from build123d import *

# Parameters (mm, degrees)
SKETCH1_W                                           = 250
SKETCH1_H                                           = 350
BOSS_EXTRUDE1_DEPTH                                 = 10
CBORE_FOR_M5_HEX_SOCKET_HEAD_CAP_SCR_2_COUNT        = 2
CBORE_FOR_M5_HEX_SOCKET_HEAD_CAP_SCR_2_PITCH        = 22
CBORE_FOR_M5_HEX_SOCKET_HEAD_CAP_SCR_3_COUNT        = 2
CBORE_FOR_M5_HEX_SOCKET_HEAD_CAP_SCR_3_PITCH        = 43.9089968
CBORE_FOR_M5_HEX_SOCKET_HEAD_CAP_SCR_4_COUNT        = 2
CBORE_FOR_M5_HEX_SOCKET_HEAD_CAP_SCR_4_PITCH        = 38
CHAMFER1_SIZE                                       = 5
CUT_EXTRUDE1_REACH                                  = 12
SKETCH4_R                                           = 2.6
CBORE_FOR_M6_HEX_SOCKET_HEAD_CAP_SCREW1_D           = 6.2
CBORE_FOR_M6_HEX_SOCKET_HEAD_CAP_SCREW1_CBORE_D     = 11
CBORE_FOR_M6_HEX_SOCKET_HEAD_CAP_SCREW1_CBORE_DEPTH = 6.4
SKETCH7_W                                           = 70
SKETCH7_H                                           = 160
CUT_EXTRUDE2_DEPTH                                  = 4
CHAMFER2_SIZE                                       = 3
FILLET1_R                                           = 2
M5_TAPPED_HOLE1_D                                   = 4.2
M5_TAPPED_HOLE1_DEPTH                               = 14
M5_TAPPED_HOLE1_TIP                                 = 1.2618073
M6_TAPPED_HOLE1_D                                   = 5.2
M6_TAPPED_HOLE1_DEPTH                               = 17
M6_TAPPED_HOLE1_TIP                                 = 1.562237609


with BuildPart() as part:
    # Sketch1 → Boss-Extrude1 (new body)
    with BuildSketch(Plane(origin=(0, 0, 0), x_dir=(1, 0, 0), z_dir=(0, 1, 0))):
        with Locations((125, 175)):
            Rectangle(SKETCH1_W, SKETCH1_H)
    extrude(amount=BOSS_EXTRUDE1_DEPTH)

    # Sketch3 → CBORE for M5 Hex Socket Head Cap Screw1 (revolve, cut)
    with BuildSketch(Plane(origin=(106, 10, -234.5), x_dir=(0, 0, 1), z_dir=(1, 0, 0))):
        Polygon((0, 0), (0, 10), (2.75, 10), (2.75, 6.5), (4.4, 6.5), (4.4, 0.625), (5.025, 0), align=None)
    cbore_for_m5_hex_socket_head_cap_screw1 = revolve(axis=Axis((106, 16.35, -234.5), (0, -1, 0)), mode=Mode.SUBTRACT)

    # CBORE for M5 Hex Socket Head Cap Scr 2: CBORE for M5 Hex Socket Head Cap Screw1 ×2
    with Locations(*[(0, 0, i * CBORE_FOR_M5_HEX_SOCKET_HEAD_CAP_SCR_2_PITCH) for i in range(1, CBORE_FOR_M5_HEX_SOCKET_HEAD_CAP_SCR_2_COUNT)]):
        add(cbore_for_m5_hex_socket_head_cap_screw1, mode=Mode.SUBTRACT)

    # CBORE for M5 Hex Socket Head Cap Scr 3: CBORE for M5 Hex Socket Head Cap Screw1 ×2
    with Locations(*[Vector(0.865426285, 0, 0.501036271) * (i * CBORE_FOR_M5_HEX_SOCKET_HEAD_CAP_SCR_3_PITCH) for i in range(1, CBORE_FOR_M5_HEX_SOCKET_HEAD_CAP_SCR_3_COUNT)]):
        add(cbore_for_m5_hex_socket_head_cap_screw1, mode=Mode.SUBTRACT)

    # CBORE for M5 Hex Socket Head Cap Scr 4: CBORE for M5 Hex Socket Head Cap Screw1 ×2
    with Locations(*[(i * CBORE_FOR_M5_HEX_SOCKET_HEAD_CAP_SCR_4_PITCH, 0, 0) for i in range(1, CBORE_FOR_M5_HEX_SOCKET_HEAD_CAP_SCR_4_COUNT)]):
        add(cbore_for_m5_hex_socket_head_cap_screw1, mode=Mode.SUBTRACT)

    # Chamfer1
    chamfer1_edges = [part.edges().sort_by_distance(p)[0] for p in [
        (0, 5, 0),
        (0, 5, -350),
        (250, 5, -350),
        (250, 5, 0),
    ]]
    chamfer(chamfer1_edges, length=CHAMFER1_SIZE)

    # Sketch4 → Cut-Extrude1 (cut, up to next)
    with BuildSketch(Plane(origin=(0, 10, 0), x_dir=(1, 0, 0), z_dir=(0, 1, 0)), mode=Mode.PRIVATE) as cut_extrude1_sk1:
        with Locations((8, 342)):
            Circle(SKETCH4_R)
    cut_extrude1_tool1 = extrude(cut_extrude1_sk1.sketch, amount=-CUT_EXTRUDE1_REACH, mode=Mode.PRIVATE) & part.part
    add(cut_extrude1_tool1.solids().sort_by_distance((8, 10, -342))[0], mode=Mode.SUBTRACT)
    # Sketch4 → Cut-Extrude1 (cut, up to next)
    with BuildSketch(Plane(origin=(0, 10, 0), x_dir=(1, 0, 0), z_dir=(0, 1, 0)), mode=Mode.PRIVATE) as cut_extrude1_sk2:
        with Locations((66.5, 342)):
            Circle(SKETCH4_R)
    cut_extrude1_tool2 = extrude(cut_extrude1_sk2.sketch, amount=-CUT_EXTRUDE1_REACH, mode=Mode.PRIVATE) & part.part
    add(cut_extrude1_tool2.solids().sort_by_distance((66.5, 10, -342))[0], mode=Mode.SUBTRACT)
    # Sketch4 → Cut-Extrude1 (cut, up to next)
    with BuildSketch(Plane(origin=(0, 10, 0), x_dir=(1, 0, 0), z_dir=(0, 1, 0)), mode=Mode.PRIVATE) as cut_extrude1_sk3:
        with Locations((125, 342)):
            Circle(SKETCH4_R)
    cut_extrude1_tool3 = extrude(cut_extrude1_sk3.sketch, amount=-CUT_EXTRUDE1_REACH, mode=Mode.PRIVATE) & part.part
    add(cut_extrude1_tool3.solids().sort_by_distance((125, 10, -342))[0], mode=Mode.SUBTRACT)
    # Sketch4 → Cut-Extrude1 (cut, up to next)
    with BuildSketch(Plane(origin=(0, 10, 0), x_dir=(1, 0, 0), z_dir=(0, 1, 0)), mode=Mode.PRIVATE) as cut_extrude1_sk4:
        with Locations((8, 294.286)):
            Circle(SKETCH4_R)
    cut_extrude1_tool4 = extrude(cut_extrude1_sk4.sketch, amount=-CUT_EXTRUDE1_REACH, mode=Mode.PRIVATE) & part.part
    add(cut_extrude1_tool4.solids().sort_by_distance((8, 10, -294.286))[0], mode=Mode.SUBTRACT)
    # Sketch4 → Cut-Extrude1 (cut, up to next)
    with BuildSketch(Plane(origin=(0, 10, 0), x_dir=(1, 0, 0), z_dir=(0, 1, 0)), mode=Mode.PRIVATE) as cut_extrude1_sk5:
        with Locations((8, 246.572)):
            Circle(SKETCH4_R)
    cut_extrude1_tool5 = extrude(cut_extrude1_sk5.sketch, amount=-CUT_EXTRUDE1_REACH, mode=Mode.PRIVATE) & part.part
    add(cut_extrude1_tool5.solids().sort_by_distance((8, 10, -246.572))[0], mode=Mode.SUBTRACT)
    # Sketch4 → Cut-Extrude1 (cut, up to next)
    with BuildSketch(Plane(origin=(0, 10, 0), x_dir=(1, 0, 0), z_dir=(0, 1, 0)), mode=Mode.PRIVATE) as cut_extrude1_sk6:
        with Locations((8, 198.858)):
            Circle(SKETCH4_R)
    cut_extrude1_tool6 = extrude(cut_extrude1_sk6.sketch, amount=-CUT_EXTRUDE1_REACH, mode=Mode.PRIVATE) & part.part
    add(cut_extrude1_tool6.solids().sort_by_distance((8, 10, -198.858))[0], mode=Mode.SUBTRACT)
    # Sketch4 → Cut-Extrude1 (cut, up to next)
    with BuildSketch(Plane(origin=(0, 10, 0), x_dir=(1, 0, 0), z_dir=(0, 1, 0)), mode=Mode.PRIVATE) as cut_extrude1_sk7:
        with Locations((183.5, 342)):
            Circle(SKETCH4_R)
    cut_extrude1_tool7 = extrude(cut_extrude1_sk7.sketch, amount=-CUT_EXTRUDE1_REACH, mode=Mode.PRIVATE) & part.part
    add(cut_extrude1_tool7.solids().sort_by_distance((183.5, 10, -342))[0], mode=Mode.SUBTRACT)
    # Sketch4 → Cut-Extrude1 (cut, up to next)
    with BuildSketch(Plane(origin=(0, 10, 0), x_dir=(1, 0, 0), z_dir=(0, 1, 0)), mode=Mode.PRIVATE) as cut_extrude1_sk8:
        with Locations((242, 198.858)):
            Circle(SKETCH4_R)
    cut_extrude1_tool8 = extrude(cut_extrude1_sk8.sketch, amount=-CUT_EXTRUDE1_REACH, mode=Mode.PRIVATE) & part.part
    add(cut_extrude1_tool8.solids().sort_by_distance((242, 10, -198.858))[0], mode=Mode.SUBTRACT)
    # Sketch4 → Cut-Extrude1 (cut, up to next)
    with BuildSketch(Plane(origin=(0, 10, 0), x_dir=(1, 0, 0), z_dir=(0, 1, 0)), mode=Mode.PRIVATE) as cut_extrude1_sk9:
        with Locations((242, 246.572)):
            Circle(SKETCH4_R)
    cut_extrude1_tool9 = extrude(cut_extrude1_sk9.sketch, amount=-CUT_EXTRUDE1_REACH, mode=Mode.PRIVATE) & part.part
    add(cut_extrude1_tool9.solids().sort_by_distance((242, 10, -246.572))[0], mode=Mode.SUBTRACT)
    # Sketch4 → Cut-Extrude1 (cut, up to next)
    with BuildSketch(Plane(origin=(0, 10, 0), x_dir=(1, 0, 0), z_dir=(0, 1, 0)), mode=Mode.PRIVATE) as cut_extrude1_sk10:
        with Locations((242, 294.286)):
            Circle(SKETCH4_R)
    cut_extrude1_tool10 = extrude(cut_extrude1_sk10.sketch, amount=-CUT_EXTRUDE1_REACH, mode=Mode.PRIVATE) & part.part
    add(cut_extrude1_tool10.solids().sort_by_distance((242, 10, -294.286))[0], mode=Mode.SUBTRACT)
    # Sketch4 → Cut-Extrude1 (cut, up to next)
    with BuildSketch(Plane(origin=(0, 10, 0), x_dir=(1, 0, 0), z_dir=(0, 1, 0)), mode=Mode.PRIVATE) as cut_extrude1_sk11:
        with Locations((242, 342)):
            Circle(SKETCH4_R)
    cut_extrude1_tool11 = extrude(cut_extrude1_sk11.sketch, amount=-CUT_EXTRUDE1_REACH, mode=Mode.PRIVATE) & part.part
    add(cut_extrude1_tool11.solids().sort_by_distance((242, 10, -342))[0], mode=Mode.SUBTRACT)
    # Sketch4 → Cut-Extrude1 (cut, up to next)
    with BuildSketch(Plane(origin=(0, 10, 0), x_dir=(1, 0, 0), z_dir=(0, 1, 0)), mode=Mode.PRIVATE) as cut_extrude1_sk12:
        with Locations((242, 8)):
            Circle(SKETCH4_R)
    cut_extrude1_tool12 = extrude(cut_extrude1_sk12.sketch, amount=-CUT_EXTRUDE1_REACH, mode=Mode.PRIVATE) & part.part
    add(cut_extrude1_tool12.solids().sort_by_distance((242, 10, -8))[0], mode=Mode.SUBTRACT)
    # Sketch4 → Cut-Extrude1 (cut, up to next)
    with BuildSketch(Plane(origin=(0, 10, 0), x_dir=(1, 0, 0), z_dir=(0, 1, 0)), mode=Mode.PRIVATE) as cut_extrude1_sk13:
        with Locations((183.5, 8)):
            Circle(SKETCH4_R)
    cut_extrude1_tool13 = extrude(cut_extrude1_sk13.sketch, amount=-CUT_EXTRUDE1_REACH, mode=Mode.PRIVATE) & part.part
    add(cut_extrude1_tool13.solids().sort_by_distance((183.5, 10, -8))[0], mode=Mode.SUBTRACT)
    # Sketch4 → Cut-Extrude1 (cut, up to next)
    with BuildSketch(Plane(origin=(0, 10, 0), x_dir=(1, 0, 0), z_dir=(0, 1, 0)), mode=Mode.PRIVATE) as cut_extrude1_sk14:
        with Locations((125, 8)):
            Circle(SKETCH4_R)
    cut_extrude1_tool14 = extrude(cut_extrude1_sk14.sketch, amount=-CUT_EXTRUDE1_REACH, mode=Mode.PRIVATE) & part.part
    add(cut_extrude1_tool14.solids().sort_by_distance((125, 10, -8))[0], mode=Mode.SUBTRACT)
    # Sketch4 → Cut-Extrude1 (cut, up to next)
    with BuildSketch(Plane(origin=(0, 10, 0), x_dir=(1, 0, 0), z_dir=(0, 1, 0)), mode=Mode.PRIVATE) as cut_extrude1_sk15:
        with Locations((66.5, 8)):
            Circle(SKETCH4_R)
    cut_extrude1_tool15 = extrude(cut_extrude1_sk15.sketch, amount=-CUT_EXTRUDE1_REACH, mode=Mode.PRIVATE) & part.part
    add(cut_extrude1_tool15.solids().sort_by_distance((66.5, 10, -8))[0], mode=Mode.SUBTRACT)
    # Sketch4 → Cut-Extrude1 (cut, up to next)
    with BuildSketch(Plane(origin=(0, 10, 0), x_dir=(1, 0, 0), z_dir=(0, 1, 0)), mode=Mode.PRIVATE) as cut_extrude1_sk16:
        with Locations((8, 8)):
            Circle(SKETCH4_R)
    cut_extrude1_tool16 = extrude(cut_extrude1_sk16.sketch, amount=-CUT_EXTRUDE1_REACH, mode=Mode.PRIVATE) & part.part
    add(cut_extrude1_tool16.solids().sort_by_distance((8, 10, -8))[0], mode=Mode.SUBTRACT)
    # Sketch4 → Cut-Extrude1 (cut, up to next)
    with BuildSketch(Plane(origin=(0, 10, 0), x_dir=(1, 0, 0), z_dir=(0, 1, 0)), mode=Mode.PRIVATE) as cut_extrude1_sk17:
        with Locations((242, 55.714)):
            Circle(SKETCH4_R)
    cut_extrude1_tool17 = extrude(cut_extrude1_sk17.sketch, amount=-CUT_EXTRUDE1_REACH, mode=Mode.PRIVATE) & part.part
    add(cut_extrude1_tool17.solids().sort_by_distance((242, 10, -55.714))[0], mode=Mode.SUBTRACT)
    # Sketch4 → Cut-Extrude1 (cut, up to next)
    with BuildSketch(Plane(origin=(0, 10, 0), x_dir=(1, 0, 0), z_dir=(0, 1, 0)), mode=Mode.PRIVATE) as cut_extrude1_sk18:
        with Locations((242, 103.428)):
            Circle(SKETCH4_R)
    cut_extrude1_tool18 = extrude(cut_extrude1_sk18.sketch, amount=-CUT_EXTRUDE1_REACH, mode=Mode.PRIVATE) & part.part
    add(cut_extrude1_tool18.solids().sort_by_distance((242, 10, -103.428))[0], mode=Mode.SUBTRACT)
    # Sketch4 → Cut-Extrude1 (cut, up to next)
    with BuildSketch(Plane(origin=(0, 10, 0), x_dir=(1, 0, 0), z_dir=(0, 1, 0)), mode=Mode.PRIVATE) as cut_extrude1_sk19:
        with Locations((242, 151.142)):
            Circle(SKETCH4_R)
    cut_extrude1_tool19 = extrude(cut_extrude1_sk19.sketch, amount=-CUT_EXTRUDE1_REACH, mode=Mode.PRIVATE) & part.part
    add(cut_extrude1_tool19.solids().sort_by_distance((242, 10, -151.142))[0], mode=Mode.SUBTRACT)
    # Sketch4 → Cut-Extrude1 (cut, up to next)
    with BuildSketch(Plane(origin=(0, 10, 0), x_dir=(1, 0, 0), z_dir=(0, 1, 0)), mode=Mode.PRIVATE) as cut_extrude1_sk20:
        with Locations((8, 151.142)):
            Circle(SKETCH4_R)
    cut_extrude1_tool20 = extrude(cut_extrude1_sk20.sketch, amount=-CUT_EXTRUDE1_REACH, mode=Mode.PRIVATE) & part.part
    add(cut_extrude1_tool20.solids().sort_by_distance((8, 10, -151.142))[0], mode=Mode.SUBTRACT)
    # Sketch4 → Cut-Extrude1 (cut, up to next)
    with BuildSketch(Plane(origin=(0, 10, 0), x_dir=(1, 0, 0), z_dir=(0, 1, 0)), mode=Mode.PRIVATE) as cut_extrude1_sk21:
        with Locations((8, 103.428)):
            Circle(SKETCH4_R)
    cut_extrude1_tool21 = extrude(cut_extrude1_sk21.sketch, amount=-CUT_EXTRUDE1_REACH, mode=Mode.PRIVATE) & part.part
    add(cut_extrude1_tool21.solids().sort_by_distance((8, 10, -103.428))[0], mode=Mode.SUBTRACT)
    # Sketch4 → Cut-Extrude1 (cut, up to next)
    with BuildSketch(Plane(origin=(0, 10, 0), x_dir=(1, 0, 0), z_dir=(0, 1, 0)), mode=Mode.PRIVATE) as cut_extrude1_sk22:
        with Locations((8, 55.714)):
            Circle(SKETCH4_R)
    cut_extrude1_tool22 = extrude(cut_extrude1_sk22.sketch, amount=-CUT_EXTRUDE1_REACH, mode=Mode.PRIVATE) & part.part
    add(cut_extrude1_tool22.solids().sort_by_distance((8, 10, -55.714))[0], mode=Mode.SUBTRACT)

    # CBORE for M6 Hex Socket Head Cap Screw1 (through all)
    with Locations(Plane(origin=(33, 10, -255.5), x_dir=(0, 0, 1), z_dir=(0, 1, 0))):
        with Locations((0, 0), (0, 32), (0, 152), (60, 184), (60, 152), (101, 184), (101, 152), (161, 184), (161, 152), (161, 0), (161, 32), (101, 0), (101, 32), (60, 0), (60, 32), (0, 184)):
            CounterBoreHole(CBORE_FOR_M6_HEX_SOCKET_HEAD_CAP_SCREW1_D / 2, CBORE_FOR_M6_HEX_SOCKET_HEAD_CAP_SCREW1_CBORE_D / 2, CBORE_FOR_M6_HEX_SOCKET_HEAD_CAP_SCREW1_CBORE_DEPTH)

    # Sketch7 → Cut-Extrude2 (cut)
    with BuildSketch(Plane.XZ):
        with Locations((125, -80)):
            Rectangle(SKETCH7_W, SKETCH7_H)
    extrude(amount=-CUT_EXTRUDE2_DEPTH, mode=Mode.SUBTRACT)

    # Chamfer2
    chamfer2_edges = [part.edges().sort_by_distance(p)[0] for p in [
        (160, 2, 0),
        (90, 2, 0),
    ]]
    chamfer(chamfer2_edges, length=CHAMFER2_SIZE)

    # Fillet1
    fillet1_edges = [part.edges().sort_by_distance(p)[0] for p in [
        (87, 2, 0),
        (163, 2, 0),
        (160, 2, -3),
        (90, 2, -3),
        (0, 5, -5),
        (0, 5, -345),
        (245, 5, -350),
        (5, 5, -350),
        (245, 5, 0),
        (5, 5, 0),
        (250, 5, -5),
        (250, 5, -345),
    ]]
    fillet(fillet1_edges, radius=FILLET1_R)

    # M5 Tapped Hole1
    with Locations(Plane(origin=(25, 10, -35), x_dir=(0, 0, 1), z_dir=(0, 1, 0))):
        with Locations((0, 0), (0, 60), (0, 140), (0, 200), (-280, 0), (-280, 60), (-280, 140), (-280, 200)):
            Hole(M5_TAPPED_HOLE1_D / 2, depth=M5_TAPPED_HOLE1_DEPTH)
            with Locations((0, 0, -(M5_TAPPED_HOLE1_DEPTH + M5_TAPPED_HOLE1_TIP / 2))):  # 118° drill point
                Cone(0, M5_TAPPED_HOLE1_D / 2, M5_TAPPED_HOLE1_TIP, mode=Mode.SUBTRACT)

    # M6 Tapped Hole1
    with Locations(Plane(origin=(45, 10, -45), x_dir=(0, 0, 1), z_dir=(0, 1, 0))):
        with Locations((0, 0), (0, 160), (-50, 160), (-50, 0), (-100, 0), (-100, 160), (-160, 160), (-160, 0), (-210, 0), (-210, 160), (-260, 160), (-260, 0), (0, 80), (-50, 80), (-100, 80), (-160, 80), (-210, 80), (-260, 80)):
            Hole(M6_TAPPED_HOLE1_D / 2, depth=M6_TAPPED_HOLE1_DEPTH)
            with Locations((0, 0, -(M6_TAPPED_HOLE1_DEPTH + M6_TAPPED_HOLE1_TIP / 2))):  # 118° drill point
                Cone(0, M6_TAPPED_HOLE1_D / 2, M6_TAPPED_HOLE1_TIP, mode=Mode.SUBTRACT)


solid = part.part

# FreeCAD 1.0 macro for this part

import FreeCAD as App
import Part
import Sketcher
from FreeCAD import Vector
Q = App.Units.Quantity


def edges_at(feature, points):
    """Names of the edges that pass closest to the given points."""
    edges = feature.Shape.Edges
    near = lambda p: min(range(len(edges)), key=lambda i: edges[i].distToShape(Part.Vertex(*p))[0])
    return sorted({f"Edge{near(p) + 1}" for p in points})


def add_polygon(sketch, points):
    """Adds a closed chain of lines whose ends are joined by coincident constraints."""
    first, n = sketch.GeometryCount, len(points)
    for a, b in zip(points, points[1:] + points[:1]):
        sketch.addGeometry(Part.LineSegment(App.Vector(*a, 0), App.Vector(*b, 0)), False)
    for i in range(n):
        sketch.addConstraint(Sketcher.Constraint("Coincident", first + i, 2, first + (i + 1) % n, 1))

doc = App.newDocument("Part")
body = doc.addObject("PartDesign::Body", "Body")

# Sketch on XZ plane
sketch1 = body.newObject("Sketcher::SketchObject", "Sketch")
sketch1.AttachmentSupport = (doc.getObject("XZ_Plane"), [""])
sketch1.MapMode = "FlatFace"
add_polygon(sketch1, [(0, -350), (0, 0), (250, 0), (250, -350)])  # lines 0-3
sketch1.addConstraint([
    Sketcher.Constraint("Vertical", 0),
    Sketcher.Constraint("Horizontal", 1),
    Sketcher.Constraint("Vertical", 2),
    Sketcher.Constraint("Horizontal", 3),
    Sketcher.Constraint("Coincident", 0, 2, -1, 1),
    Sketcher.Constraint("DistanceX", 1, 1, 1, 2, Q("250 mm")),
    Sketcher.Constraint("DistanceY", 0, 1, 0, 2, Q("350 mm")),
])
pad1 = body.newObject("PartDesign::Pad", "Pad")
pad1.Profile = sketch1
pad1.Length = 10
pad1.Reversed = True

# Sketch on YZ plane
sketch2 = body.newObject("Sketcher::SketchObject", "Sketch001")
sketch2.AttachmentSupport = (doc.getObject("YZ_Plane"), [""])
sketch2.MapMode = "FlatFace"
sketch2.AttachmentOffset = App.Placement(Vector(0, 0, 106), App.Rotation())
add_polygon(sketch2, [(0, -234.5), (10, -234.5), (10, -229.5), (9.4, -230.1), (3.5, -230.1), (3.5, -231.8), (0, -231.8)])  # lines 0-6
sketch2.addGeometry(Part.LineSegment(Vector(10, -234.5, 0), Vector(0, -234.5, 0)), True)  # axis
sketch2.addConstraint([
    Sketcher.Constraint("Horizontal", 0),
    Sketcher.Constraint("Vertical", 1),
    Sketcher.Constraint("Horizontal", 3),
    Sketcher.Constraint("Vertical", 4),
    Sketcher.Constraint("Horizontal", 5),
    Sketcher.Constraint("Vertical", 6),
    Sketcher.Constraint("Horizontal", 7),
    Sketcher.Constraint("Coincident", 7, 1, 0, 2),
    Sketcher.Constraint("PointOnObject", 5, 2, -2),
    Sketcher.Constraint("PointOnObject", 7, 2, -2),
    Sketcher.Constraint("DistanceX", 0, 1, 0, 2, Q("10 mm")),
    Sketcher.Constraint("Angle", 2, Q("-135 deg")),
    Sketcher.Constraint("DistanceX", 5, 2, 5, 1, Q("3.5 mm")),
    Sketcher.Constraint("DistanceY", 4, 2, 4, 1, Q("1.65 mm")),
    Sketcher.Constraint("DistanceY", 6, 2, 6, 1, Q("2.75 mm")),
    Sketcher.Constraint("DistanceY", 0, 2, -1, 1, Q("234.5 mm")),
    Sketcher.Constraint("DistanceX", 3, 2, 3, 1, Q("5.875 mm")),
])
groove = body.newObject("PartDesign::Groove", "Groove")
groove.Profile = sketch2
groove.ReferenceAxis = (sketch2, ["Axis0"])
groove.Angle = 360
doc.recompute()

linearpattern = body.newObject("PartDesign::LinearPattern", "LinearPattern")
linearpattern.Originals = [groove]
linearpattern.Direction = (doc.getObject("Z_Axis"), [""])
linearpattern.Mode = "offset"
linearpattern.Offset = 22
linearpattern.Occurrences = 2
body.Tip = linearpattern
doc.recompute()

datumline = body.newObject("PartDesign::Line", "DatumLine")
datumline.Placement = App.Placement(Vector(0, 0, 0), App.Rotation(Vector(0, 0, 1), Vector(0.865426285, 0, 0.501036271)))
linearpattern2 = body.newObject("PartDesign::LinearPattern", "LinearPattern001")
linearpattern2.Originals = [groove]
linearpattern2.Direction = (datumline, [""])
linearpattern2.Mode = "offset"
linearpattern2.Offset = 43.908997
linearpattern2.Occurrences = 2
body.Tip = linearpattern2
doc.recompute()

linearpattern3 = body.newObject("PartDesign::LinearPattern", "LinearPattern002")
linearpattern3.Originals = [groove]
linearpattern3.Direction = (doc.getObject("X_Axis"), [""])
linearpattern3.Mode = "offset"
linearpattern3.Offset = 38
linearpattern3.Occurrences = 2
body.Tip = linearpattern3
doc.recompute()

chamfer = body.newObject("PartDesign::Chamfer", "Chamfer")
chamfer.Base = (linearpattern3, edges_at(linearpattern3, [
    (0, 5, 0),
    (0, 5, -350),
    (250, 5, -350),
    (250, 5, 0),
]))
chamfer.Size = 5

# Sketch on XZ plane
sketch3 = body.newObject("Sketcher::SketchObject", "Sketch002")
sketch3.AttachmentSupport = (doc.getObject("XZ_Plane"), [""])
sketch3.MapMode = "FlatFace"
sketch3.AttachmentOffset = App.Placement(Vector(0, 0, -10), App.Rotation())
sketch3.addGeometry(Part.Circle(Vector(8, -342, 0), Vector(0, 0, 1), 2.6), False)
sketch3.addConstraint([
    Sketcher.Constraint("Diameter", 0, Q("5.2 mm")),
    Sketcher.Constraint("DistanceX", -1, 1, 0, 3, Q("8 mm")),
    Sketcher.Constraint("DistanceY", 0, 3, -1, 1, Q("342 mm")),
])
pocket1 = body.newObject("PartDesign::Pocket", "Pocket")
pocket1.Profile = sketch3
pocket1.Type = "UpToFirst"
pocket1.Reversed = True

# Sketch on XZ plane
sketch4 = body.newObject("Sketcher::SketchObject", "Sketch003")
sketch4.AttachmentSupport = (doc.getObject("XZ_Plane"), [""])
sketch4.MapMode = "FlatFace"
sketch4.AttachmentOffset = App.Placement(Vector(0, 0, -10), App.Rotation())
sketch4.addGeometry(Part.Circle(Vector(66.5, -342, 0), Vector(0, 0, 1), 2.6), False)
sketch4.addConstraint([
    Sketcher.Constraint("Diameter", 0, Q("5.2 mm")),
    Sketcher.Constraint("DistanceY", 0, 3, -1, 1, Q("342 mm")),
    Sketcher.Constraint("DistanceX", -1, 1, 0, 3, Q("66.5 mm")),
])
pocket2 = body.newObject("PartDesign::Pocket", "Pocket001")
pocket2.Profile = sketch4
pocket2.Type = "UpToFirst"
pocket2.Reversed = True

# Sketch on XZ plane
sketch5 = body.newObject("Sketcher::SketchObject", "Sketch004")
sketch5.AttachmentSupport = (doc.getObject("XZ_Plane"), [""])
sketch5.MapMode = "FlatFace"
sketch5.AttachmentOffset = App.Placement(Vector(0, 0, -10), App.Rotation())
sketch5.addGeometry(Part.Circle(Vector(125, -342, 0), Vector(0, 0, 1), 2.6), False)
sketch5.addConstraint([
    Sketcher.Constraint("Diameter", 0, Q("5.2 mm")),
    Sketcher.Constraint("DistanceX", -1, 1, 0, 3, Q("125 mm")),
    Sketcher.Constraint("DistanceY", 0, 3, -1, 1, Q("342 mm")),
])
pocket3 = body.newObject("PartDesign::Pocket", "Pocket002")
pocket3.Profile = sketch5
pocket3.Type = "UpToFirst"
pocket3.Reversed = True

# Sketch on XZ plane
sketch6 = body.newObject("Sketcher::SketchObject", "Sketch005")
sketch6.AttachmentSupport = (doc.getObject("XZ_Plane"), [""])
sketch6.MapMode = "FlatFace"
sketch6.AttachmentOffset = App.Placement(Vector(0, 0, -10), App.Rotation())
sketch6.addGeometry(Part.Circle(Vector(8, -294.3, 0), Vector(0, 0, 1), 2.6), False)
sketch6.addConstraint([
    Sketcher.Constraint("Diameter", 0, Q("5.2 mm")),
    Sketcher.Constraint("DistanceX", -1, 1, 0, 3, Q("8 mm")),
    Sketcher.Constraint("DistanceY", 0, 3, -1, 1, Q("294.286 mm")),
])
pocket4 = body.newObject("PartDesign::Pocket", "Pocket003")
pocket4.Profile = sketch6
pocket4.Type = "UpToFirst"
pocket4.Reversed = True

# Sketch on XZ plane
sketch7 = body.newObject("Sketcher::SketchObject", "Sketch006")
sketch7.AttachmentSupport = (doc.getObject("XZ_Plane"), [""])
sketch7.MapMode = "FlatFace"
sketch7.AttachmentOffset = App.Placement(Vector(0, 0, -10), App.Rotation())
sketch7.addGeometry(Part.Circle(Vector(8, -246.6, 0), Vector(0, 0, 1), 2.6), False)
sketch7.addConstraint([
    Sketcher.Constraint("Diameter", 0, Q("5.2 mm")),
    Sketcher.Constraint("DistanceX", -1, 1, 0, 3, Q("8 mm")),
    Sketcher.Constraint("DistanceY", 0, 3, -1, 1, Q("246.572 mm")),
])
pocket5 = body.newObject("PartDesign::Pocket", "Pocket004")
pocket5.Profile = sketch7
pocket5.Type = "UpToFirst"
pocket5.Reversed = True

# Sketch on XZ plane
sketch8 = body.newObject("Sketcher::SketchObject", "Sketch007")
sketch8.AttachmentSupport = (doc.getObject("XZ_Plane"), [""])
sketch8.MapMode = "FlatFace"
sketch8.AttachmentOffset = App.Placement(Vector(0, 0, -10), App.Rotation())
sketch8.addGeometry(Part.Circle(Vector(8, -198.9, 0), Vector(0, 0, 1), 2.6), False)
sketch8.addConstraint([
    Sketcher.Constraint("Diameter", 0, Q("5.2 mm")),
    Sketcher.Constraint("DistanceX", -1, 1, 0, 3, Q("8 mm")),
    Sketcher.Constraint("DistanceY", 0, 3, -1, 1, Q("198.858 mm")),
])
pocket6 = body.newObject("PartDesign::Pocket", "Pocket005")
pocket6.Profile = sketch8
pocket6.Type = "UpToFirst"
pocket6.Reversed = True

# Sketch on XZ plane
sketch9 = body.newObject("Sketcher::SketchObject", "Sketch008")
sketch9.AttachmentSupport = (doc.getObject("XZ_Plane"), [""])
sketch9.MapMode = "FlatFace"
sketch9.AttachmentOffset = App.Placement(Vector(0, 0, -10), App.Rotation())
sketch9.addGeometry(Part.Circle(Vector(183.5, -342, 0), Vector(0, 0, 1), 2.6), False)
sketch9.addConstraint([
    Sketcher.Constraint("Diameter", 0, Q("5.2 mm")),
    Sketcher.Constraint("DistanceY", 0, 3, -1, 1, Q("342 mm")),
    Sketcher.Constraint("DistanceX", -1, 1, 0, 3, Q("183.5 mm")),
])
pocket7 = body.newObject("PartDesign::Pocket", "Pocket006")
pocket7.Profile = sketch9
pocket7.Type = "UpToFirst"
pocket7.Reversed = True

# Sketch on XZ plane
sketch10 = body.newObject("Sketcher::SketchObject", "Sketch009")
sketch10.AttachmentSupport = (doc.getObject("XZ_Plane"), [""])
sketch10.MapMode = "FlatFace"
sketch10.AttachmentOffset = App.Placement(Vector(0, 0, -10), App.Rotation())
sketch10.addGeometry(Part.Circle(Vector(242, -198.9, 0), Vector(0, 0, 1), 2.6), False)
sketch10.addConstraint([
    Sketcher.Constraint("Diameter", 0, Q("5.2 mm")),
    Sketcher.Constraint("DistanceX", -1, 1, 0, 3, Q("242 mm")),
    Sketcher.Constraint("DistanceY", 0, 3, -1, 1, Q("198.858 mm")),
])
pocket8 = body.newObject("PartDesign::Pocket", "Pocket007")
pocket8.Profile = sketch10
pocket8.Type = "UpToFirst"
pocket8.Reversed = True

# Sketch on XZ plane
sketch11 = body.newObject("Sketcher::SketchObject", "Sketch010")
sketch11.AttachmentSupport = (doc.getObject("XZ_Plane"), [""])
sketch11.MapMode = "FlatFace"
sketch11.AttachmentOffset = App.Placement(Vector(0, 0, -10), App.Rotation())
sketch11.addGeometry(Part.Circle(Vector(242, -246.6, 0), Vector(0, 0, 1), 2.6), False)
sketch11.addConstraint([
    Sketcher.Constraint("Diameter", 0, Q("5.2 mm")),
    Sketcher.Constraint("DistanceX", -1, 1, 0, 3, Q("242 mm")),
    Sketcher.Constraint("DistanceY", 0, 3, -1, 1, Q("246.572 mm")),
])
pocket9 = body.newObject("PartDesign::Pocket", "Pocket008")
pocket9.Profile = sketch11
pocket9.Type = "UpToFirst"
pocket9.Reversed = True

# Sketch on XZ plane
sketch12 = body.newObject("Sketcher::SketchObject", "Sketch011")
sketch12.AttachmentSupport = (doc.getObject("XZ_Plane"), [""])
sketch12.MapMode = "FlatFace"
sketch12.AttachmentOffset = App.Placement(Vector(0, 0, -10), App.Rotation())
sketch12.addGeometry(Part.Circle(Vector(242, -294.3, 0), Vector(0, 0, 1), 2.6), False)
sketch12.addConstraint([
    Sketcher.Constraint("Diameter", 0, Q("5.2 mm")),
    Sketcher.Constraint("DistanceX", -1, 1, 0, 3, Q("242 mm")),
    Sketcher.Constraint("DistanceY", 0, 3, -1, 1, Q("294.286 mm")),
])
pocket10 = body.newObject("PartDesign::Pocket", "Pocket009")
pocket10.Profile = sketch12
pocket10.Type = "UpToFirst"
pocket10.Reversed = True

# Sketch on XZ plane
sketch13 = body.newObject("Sketcher::SketchObject", "Sketch012")
sketch13.AttachmentSupport = (doc.getObject("XZ_Plane"), [""])
sketch13.MapMode = "FlatFace"
sketch13.AttachmentOffset = App.Placement(Vector(0, 0, -10), App.Rotation())
sketch13.addGeometry(Part.Circle(Vector(242, -342, 0), Vector(0, 0, 1), 2.6), False)
sketch13.addConstraint([
    Sketcher.Constraint("Diameter", 0, Q("5.2 mm")),
    Sketcher.Constraint("DistanceX", -1, 1, 0, 3, Q("242 mm")),
    Sketcher.Constraint("DistanceY", 0, 3, -1, 1, Q("342 mm")),
])
pocket11 = body.newObject("PartDesign::Pocket", "Pocket010")
pocket11.Profile = sketch13
pocket11.Type = "UpToFirst"
pocket11.Reversed = True

# Sketch on XZ plane
sketch14 = body.newObject("Sketcher::SketchObject", "Sketch013")
sketch14.AttachmentSupport = (doc.getObject("XZ_Plane"), [""])
sketch14.MapMode = "FlatFace"
sketch14.AttachmentOffset = App.Placement(Vector(0, 0, -10), App.Rotation())
sketch14.addGeometry(Part.Circle(Vector(242, -8, 0), Vector(0, 0, 1), 2.6), False)
sketch14.addConstraint([
    Sketcher.Constraint("Diameter", 0, Q("5.2 mm")),
    Sketcher.Constraint("DistanceX", -1, 1, 0, 3, Q("242 mm")),
    Sketcher.Constraint("DistanceY", 0, 3, -1, 1, Q("8 mm")),
])
pocket12 = body.newObject("PartDesign::Pocket", "Pocket011")
pocket12.Profile = sketch14
pocket12.Type = "UpToFirst"
pocket12.Reversed = True

# Sketch on XZ plane
sketch15 = body.newObject("Sketcher::SketchObject", "Sketch014")
sketch15.AttachmentSupport = (doc.getObject("XZ_Plane"), [""])
sketch15.MapMode = "FlatFace"
sketch15.AttachmentOffset = App.Placement(Vector(0, 0, -10), App.Rotation())
sketch15.addGeometry(Part.Circle(Vector(183.5, -8, 0), Vector(0, 0, 1), 2.6), False)
sketch15.addConstraint([
    Sketcher.Constraint("Diameter", 0, Q("5.2 mm")),
    Sketcher.Constraint("DistanceY", 0, 3, -1, 1, Q("8 mm")),
    Sketcher.Constraint("DistanceX", -1, 1, 0, 3, Q("183.5 mm")),
])
pocket13 = body.newObject("PartDesign::Pocket", "Pocket012")
pocket13.Profile = sketch15
pocket13.Type = "UpToFirst"
pocket13.Reversed = True

# Sketch on XZ plane
sketch16 = body.newObject("Sketcher::SketchObject", "Sketch015")
sketch16.AttachmentSupport = (doc.getObject("XZ_Plane"), [""])
sketch16.MapMode = "FlatFace"
sketch16.AttachmentOffset = App.Placement(Vector(0, 0, -10), App.Rotation())
sketch16.addGeometry(Part.Circle(Vector(125, -8, 0), Vector(0, 0, 1), 2.6), False)
sketch16.addConstraint([
    Sketcher.Constraint("Diameter", 0, Q("5.2 mm")),
    Sketcher.Constraint("DistanceX", -1, 1, 0, 3, Q("125 mm")),
    Sketcher.Constraint("DistanceY", 0, 3, -1, 1, Q("8 mm")),
])
pocket14 = body.newObject("PartDesign::Pocket", "Pocket013")
pocket14.Profile = sketch16
pocket14.Type = "UpToFirst"
pocket14.Reversed = True

# Sketch on XZ plane
sketch17 = body.newObject("Sketcher::SketchObject", "Sketch016")
sketch17.AttachmentSupport = (doc.getObject("XZ_Plane"), [""])
sketch17.MapMode = "FlatFace"
sketch17.AttachmentOffset = App.Placement(Vector(0, 0, -10), App.Rotation())
sketch17.addGeometry(Part.Circle(Vector(66.5, -8, 0), Vector(0, 0, 1), 2.6), False)
sketch17.addConstraint([
    Sketcher.Constraint("Diameter", 0, Q("5.2 mm")),
    Sketcher.Constraint("DistanceY", 0, 3, -1, 1, Q("8 mm")),
    Sketcher.Constraint("DistanceX", -1, 1, 0, 3, Q("66.5 mm")),
])
pocket15 = body.newObject("PartDesign::Pocket", "Pocket014")
pocket15.Profile = sketch17
pocket15.Type = "UpToFirst"
pocket15.Reversed = True

# Sketch on XZ plane
sketch18 = body.newObject("Sketcher::SketchObject", "Sketch017")
sketch18.AttachmentSupport = (doc.getObject("XZ_Plane"), [""])
sketch18.MapMode = "FlatFace"
sketch18.AttachmentOffset = App.Placement(Vector(0, 0, -10), App.Rotation())
sketch18.addGeometry(Part.Circle(Vector(8, -8, 0), Vector(0, 0, 1), 2.6), False)
sketch18.addConstraint([
    Sketcher.Constraint("Diameter", 0, Q("5.2 mm")),
    Sketcher.Constraint("DistanceX", -1, 1, 0, 3, Q("8 mm")),
    Sketcher.Constraint("DistanceY", 0, 3, -1, 1, Q("8 mm")),
])
pocket16 = body.newObject("PartDesign::Pocket", "Pocket015")
pocket16.Profile = sketch18
pocket16.Type = "UpToFirst"
pocket16.Reversed = True

# Sketch on XZ plane
sketch19 = body.newObject("Sketcher::SketchObject", "Sketch018")
sketch19.AttachmentSupport = (doc.getObject("XZ_Plane"), [""])
sketch19.MapMode = "FlatFace"
sketch19.AttachmentOffset = App.Placement(Vector(0, 0, -10), App.Rotation())
sketch19.addGeometry(Part.Circle(Vector(242, -55.7, 0), Vector(0, 0, 1), 2.6), False)
sketch19.addConstraint([
    Sketcher.Constraint("Diameter", 0, Q("5.2 mm")),
    Sketcher.Constraint("DistanceX", -1, 1, 0, 3, Q("242 mm")),
    Sketcher.Constraint("DistanceY", 0, 3, -1, 1, Q("55.714 mm")),
])
pocket17 = body.newObject("PartDesign::Pocket", "Pocket016")
pocket17.Profile = sketch19
pocket17.Type = "UpToFirst"
pocket17.Reversed = True

# Sketch on XZ plane
sketch20 = body.newObject("Sketcher::SketchObject", "Sketch019")
sketch20.AttachmentSupport = (doc.getObject("XZ_Plane"), [""])
sketch20.MapMode = "FlatFace"
sketch20.AttachmentOffset = App.Placement(Vector(0, 0, -10), App.Rotation())
sketch20.addGeometry(Part.Circle(Vector(242, -103.4, 0), Vector(0, 0, 1), 2.6), False)
sketch20.addConstraint([
    Sketcher.Constraint("Diameter", 0, Q("5.2 mm")),
    Sketcher.Constraint("DistanceX", -1, 1, 0, 3, Q("242 mm")),
    Sketcher.Constraint("DistanceY", 0, 3, -1, 1, Q("103.428 mm")),
])
pocket18 = body.newObject("PartDesign::Pocket", "Pocket017")
pocket18.Profile = sketch20
pocket18.Type = "UpToFirst"
pocket18.Reversed = True

# Sketch on XZ plane
sketch21 = body.newObject("Sketcher::SketchObject", "Sketch020")
sketch21.AttachmentSupport = (doc.getObject("XZ_Plane"), [""])
sketch21.MapMode = "FlatFace"
sketch21.AttachmentOffset = App.Placement(Vector(0, 0, -10), App.Rotation())
sketch21.addGeometry(Part.Circle(Vector(242, -151.1, 0), Vector(0, 0, 1), 2.6), False)
sketch21.addConstraint([
    Sketcher.Constraint("Diameter", 0, Q("5.2 mm")),
    Sketcher.Constraint("DistanceX", -1, 1, 0, 3, Q("242 mm")),
    Sketcher.Constraint("DistanceY", 0, 3, -1, 1, Q("151.142 mm")),
])
pocket19 = body.newObject("PartDesign::Pocket", "Pocket018")
pocket19.Profile = sketch21
pocket19.Type = "UpToFirst"
pocket19.Reversed = True

# Sketch on XZ plane
sketch22 = body.newObject("Sketcher::SketchObject", "Sketch021")
sketch22.AttachmentSupport = (doc.getObject("XZ_Plane"), [""])
sketch22.MapMode = "FlatFace"
sketch22.AttachmentOffset = App.Placement(Vector(0, 0, -10), App.Rotation())
sketch22.addGeometry(Part.Circle(Vector(8, -151.1, 0), Vector(0, 0, 1), 2.6), False)
sketch22.addConstraint([
    Sketcher.Constraint("Diameter", 0, Q("5.2 mm")),
    Sketcher.Constraint("DistanceX", -1, 1, 0, 3, Q("8 mm")),
    Sketcher.Constraint("DistanceY", 0, 3, -1, 1, Q("151.142 mm")),
])
pocket20 = body.newObject("PartDesign::Pocket", "Pocket019")
pocket20.Profile = sketch22
pocket20.Type = "UpToFirst"
pocket20.Reversed = True

# Sketch on XZ plane
sketch23 = body.newObject("Sketcher::SketchObject", "Sketch022")
sketch23.AttachmentSupport = (doc.getObject("XZ_Plane"), [""])
sketch23.MapMode = "FlatFace"
sketch23.AttachmentOffset = App.Placement(Vector(0, 0, -10), App.Rotation())
sketch23.addGeometry(Part.Circle(Vector(8, -103.4, 0), Vector(0, 0, 1), 2.6), False)
sketch23.addConstraint([
    Sketcher.Constraint("Diameter", 0, Q("5.2 mm")),
    Sketcher.Constraint("DistanceX", -1, 1, 0, 3, Q("8 mm")),
    Sketcher.Constraint("DistanceY", 0, 3, -1, 1, Q("103.428 mm")),
])
pocket21 = body.newObject("PartDesign::Pocket", "Pocket020")
pocket21.Profile = sketch23
pocket21.Type = "UpToFirst"
pocket21.Reversed = True

# Sketch on XZ plane
sketch24 = body.newObject("Sketcher::SketchObject", "Sketch023")
sketch24.AttachmentSupport = (doc.getObject("XZ_Plane"), [""])
sketch24.MapMode = "FlatFace"
sketch24.AttachmentOffset = App.Placement(Vector(0, 0, -10), App.Rotation())
sketch24.addGeometry(Part.Circle(Vector(8, -55.7, 0), Vector(0, 0, 1), 2.6), False)
sketch24.addConstraint([
    Sketcher.Constraint("Diameter", 0, Q("5.2 mm")),
    Sketcher.Constraint("DistanceX", -1, 1, 0, 3, Q("8 mm")),
    Sketcher.Constraint("DistanceY", 0, 3, -1, 1, Q("55.714 mm")),
])
pocket22 = body.newObject("PartDesign::Pocket", "Pocket021")
pocket22.Profile = sketch24
pocket22.Type = "UpToFirst"
pocket22.Reversed = True

# Sketch on XZ plane
sketch25 = body.newObject("Sketcher::SketchObject", "Sketch024")
sketch25.AttachmentSupport = (doc.getObject("XZ_Plane"), [""])
sketch25.MapMode = "FlatFace"
sketch25.AttachmentOffset = App.Placement(Vector(0, 0, -10), App.Rotation())
sketch25.addGeometry([
    Part.Circle(Vector(33, -255.5, 0), Vector(0, 0, 1), 3.1),  # 0
    Part.Circle(Vector(65, -255.5, 0), Vector(0, 0, 1), 3.1),  # 1
    Part.Circle(Vector(185, -255.5, 0), Vector(0, 0, 1), 3.1),  # 2
    Part.Circle(Vector(217, -195.5, 0), Vector(0, 0, 1), 3.1),  # 3
    Part.Circle(Vector(185, -195.5, 0), Vector(0, 0, 1), 3.1),  # 4
    Part.Circle(Vector(217, -154.5, 0), Vector(0, 0, 1), 3.1),  # 5
    Part.Circle(Vector(185, -154.5, 0), Vector(0, 0, 1), 3.1),  # 6
    Part.Circle(Vector(217, -94.5, 0), Vector(0, 0, 1), 3.1),  # 7
    Part.Circle(Vector(185, -94.5, 0), Vector(0, 0, 1), 3.1),  # 8
    Part.Circle(Vector(33, -94.5, 0), Vector(0, 0, 1), 3.1),  # 9
    Part.Circle(Vector(65, -94.5, 0), Vector(0, 0, 1), 3.1),  # 10
    Part.Circle(Vector(33, -154.5, 0), Vector(0, 0, 1), 3.1),  # 11
    Part.Circle(Vector(65, -154.5, 0), Vector(0, 0, 1), 3.1),  # 12
    Part.Circle(Vector(33, -195.5, 0), Vector(0, 0, 1), 3.1),  # 13
    Part.Circle(Vector(65, -195.5, 0), Vector(0, 0, 1), 3.1),  # 14
    Part.Circle(Vector(217, -255.5, 0), Vector(0, 0, 1), 3.1),  # 15
], False)
sketch25.addConstraint([
    Sketcher.Constraint("Equal", 0, 1),
    Sketcher.Constraint("Equal", 1, 2),
    Sketcher.Constraint("Equal", 2, 3),
    Sketcher.Constraint("Equal", 3, 4),
    Sketcher.Constraint("Equal", 4, 5),
    Sketcher.Constraint("Equal", 5, 6),
    Sketcher.Constraint("Equal", 6, 7),
    Sketcher.Constraint("Equal", 7, 8),
    Sketcher.Constraint("Equal", 8, 9),
    Sketcher.Constraint("Equal", 9, 10),
    Sketcher.Constraint("Equal", 10, 11),
    Sketcher.Constraint("Equal", 11, 12),
    Sketcher.Constraint("Equal", 12, 13),
    Sketcher.Constraint("Equal", 13, 14),
    Sketcher.Constraint("Equal", 14, 15),
    Sketcher.Constraint("Horizontal", 0, 3, 1, 3),
    Sketcher.Constraint("Horizontal", 1, 3, 2, 3),
    Sketcher.Constraint("Horizontal", 3, 3, 4, 3),
    Sketcher.Constraint("Horizontal", 5, 3, 6, 3),
    Sketcher.Constraint("Horizontal", 7, 3, 8, 3),
    Sketcher.Constraint("Horizontal", 8, 3, 9, 3),
    Sketcher.Constraint("Horizontal", 9, 3, 10, 3),
    Sketcher.Constraint("Horizontal", 6, 3, 11, 3),
    Sketcher.Constraint("Horizontal", 11, 3, 12, 3),
    Sketcher.Constraint("Horizontal", 4, 3, 13, 3),
    Sketcher.Constraint("Horizontal", 13, 3, 14, 3),
    Sketcher.Constraint("Horizontal", 2, 3, 15, 3),
    Sketcher.Constraint("Vertical", 2, 3, 4, 3),
    Sketcher.Constraint("Vertical", 3, 3, 5, 3),
    Sketcher.Constraint("Vertical", 4, 3, 6, 3),
    Sketcher.Constraint("Vertical", 5, 3, 7, 3),
    Sketcher.Constraint("Vertical", 6, 3, 8, 3),
    Sketcher.Constraint("Vertical", 0, 3, 9, 3),
    Sketcher.Constraint("Vertical", 1, 3, 10, 3),
    Sketcher.Constraint("Vertical", 9, 3, 11, 3),
    Sketcher.Constraint("Vertical", 10, 3, 12, 3),
    Sketcher.Constraint("Vertical", 11, 3, 13, 3),
    Sketcher.Constraint("Vertical", 12, 3, 14, 3),
    Sketcher.Constraint("Vertical", 7, 3, 15, 3),
    Sketcher.Constraint("Diameter", 0, Q("6.2 mm")),
    Sketcher.Constraint("DistanceX", -1, 1, 0, 3, Q("33 mm")),
    Sketcher.Constraint("DistanceX", -1, 1, 1, 3, Q("65 mm")),
    Sketcher.Constraint("DistanceX", -1, 1, 2, 3, Q("185 mm")),
    Sketcher.Constraint("DistanceX", -1, 1, 3, 3, Q("217 mm")),
    Sketcher.Constraint("DistanceY", 2, 3, 3, 3, Q("60 mm")),
    Sketcher.Constraint("DistanceY", 3, 3, 5, 3, Q("41 mm")),
    Sketcher.Constraint("DistanceY", 5, 3, 7, 3, Q("60 mm")),
    Sketcher.Constraint("DistanceY", 0, 3, -1, 1, Q("255.5 mm")),
])
doc.recompute()
hole = body.newObject("PartDesign::Hole", "Hole")
hole.Profile = sketch25
hole.ThreadType = "None"
hole.Diameter = 6.2
hole.DepthType = "ThroughAll"
hole.HoleCutType = "Counterbore"
hole.HoleCutDiameter = 11
hole.HoleCutDepth = 6.4
hole.Reversed = True

# Sketch on XZ plane
sketch26 = body.newObject("Sketcher::SketchObject", "Sketch025")
sketch26.AttachmentSupport = (doc.getObject("XZ_Plane"), [""])
sketch26.MapMode = "FlatFace"
add_polygon(sketch26, [(90, 0), (90, -160), (160, -160), (160, 0)])  # lines 0-3
sketch26.addConstraint([
    Sketcher.Constraint("Vertical", 0),
    Sketcher.Constraint("Horizontal", 1),
    Sketcher.Constraint("Vertical", 2),
    Sketcher.Constraint("Horizontal", 3),
    Sketcher.Constraint("PointOnObject", 2, 2, -1),
    Sketcher.Constraint("DistanceX", 1, 1, 1, 2, Q("70 mm")),
    Sketcher.Constraint("DistanceY", 0, 2, 0, 1, Q("160 mm")),
    Sketcher.Constraint("DistanceX", -1, 1, 0, 2, Q("90 mm")),
])
pocket23 = body.newObject("PartDesign::Pocket", "Pocket022")
pocket23.Profile = sketch26
pocket23.Length = 4
doc.recompute()

chamfer2 = body.newObject("PartDesign::Chamfer", "Chamfer001")
chamfer2.Base = (pocket23, edges_at(pocket23, [(160, 2, 0), (90, 2, 0)]))
chamfer2.Size = 3
doc.recompute()

fillet = body.newObject("PartDesign::Fillet", "Fillet")
fillet.Base = (chamfer2, edges_at(chamfer2, [
    (87, 2, 0),
    (163, 2, 0),
    (160, 2, -3),
    (90, 2, -3),
    (0, 5, -5),
    (0, 5, -345),
    (245, 5, -350),
    (5, 5, -350),
    (245, 5, 0),
    (5, 5, 0),
    (250, 5, -5),
    (250, 5, -345),
]))
fillet.Radius = 2

# Sketch on XZ plane
sketch27 = body.newObject("Sketcher::SketchObject", "Sketch026")
sketch27.AttachmentSupport = (doc.getObject("XZ_Plane"), [""])
sketch27.MapMode = "FlatFace"
sketch27.AttachmentOffset = App.Placement(Vector(0, 0, -10), App.Rotation())
sketch27.addGeometry([
    Part.Circle(Vector(25, -35, 0), Vector(0, 0, 1), 2.1),  # 0
    Part.Circle(Vector(85, -35, 0), Vector(0, 0, 1), 2.1),  # 1
    Part.Circle(Vector(165, -35, 0), Vector(0, 0, 1), 2.1),  # 2
    Part.Circle(Vector(225, -35, 0), Vector(0, 0, 1), 2.1),  # 3
    Part.Circle(Vector(25, -315, 0), Vector(0, 0, 1), 2.1),  # 4
    Part.Circle(Vector(85, -315, 0), Vector(0, 0, 1), 2.1),  # 5
    Part.Circle(Vector(165, -315, 0), Vector(0, 0, 1), 2.1),  # 6
    Part.Circle(Vector(225, -315, 0), Vector(0, 0, 1), 2.1),  # 7
], False)
sketch27.addConstraint([
    Sketcher.Constraint("Equal", 0, 1),
    Sketcher.Constraint("Equal", 1, 2),
    Sketcher.Constraint("Equal", 2, 3),
    Sketcher.Constraint("Equal", 3, 4),
    Sketcher.Constraint("Equal", 4, 5),
    Sketcher.Constraint("Equal", 5, 6),
    Sketcher.Constraint("Equal", 6, 7),
    Sketcher.Constraint("Horizontal", 0, 3, 1, 3),
    Sketcher.Constraint("Horizontal", 1, 3, 2, 3),
    Sketcher.Constraint("Horizontal", 2, 3, 3, 3),
    Sketcher.Constraint("Horizontal", 4, 3, 5, 3),
    Sketcher.Constraint("Horizontal", 5, 3, 6, 3),
    Sketcher.Constraint("Horizontal", 6, 3, 7, 3),
    Sketcher.Constraint("Vertical", 0, 3, 4, 3),
    Sketcher.Constraint("Vertical", 1, 3, 5, 3),
    Sketcher.Constraint("Vertical", 2, 3, 6, 3),
    Sketcher.Constraint("Vertical", 3, 3, 7, 3),
    Sketcher.Constraint("Diameter", 0, Q("4.2 mm")),
    Sketcher.Constraint("DistanceX", -1, 1, 0, 3, Q("25 mm")),
    Sketcher.Constraint("DistanceY", 0, 3, -1, 1, Q("35 mm")),
    Sketcher.Constraint("DistanceX", -1, 1, 1, 3, Q("85 mm")),
    Sketcher.Constraint("DistanceX", -1, 1, 2, 3, Q("165 mm")),
    Sketcher.Constraint("DistanceX", -1, 1, 3, 3, Q("225 mm")),
    Sketcher.Constraint("DistanceY", 4, 3, -1, 1, Q("315 mm")),
])
doc.recompute()
hole2 = body.newObject("PartDesign::Hole", "Hole001")
hole2.Profile = sketch27
hole2.ThreadType = "None"
hole2.Diameter = 4.2
hole2.DepthType = "Dimension"
hole2.Depth = 14
hole2.DrillPoint = "Angled"
hole2.DrillPointAngle = 118
hole2.Reversed = True

# Sketch on XZ plane
sketch28 = body.newObject("Sketcher::SketchObject", "Sketch027")
sketch28.AttachmentSupport = (doc.getObject("XZ_Plane"), [""])
sketch28.MapMode = "FlatFace"
sketch28.AttachmentOffset = App.Placement(Vector(0, 0, -10), App.Rotation())
sketch28.addGeometry([
    Part.Circle(Vector(45, -45, 0), Vector(0, 0, 1), 2.6),  # 0
    Part.Circle(Vector(205, -45, 0), Vector(0, 0, 1), 2.6),  # 1
    Part.Circle(Vector(205, -95, 0), Vector(0, 0, 1), 2.6),  # 2
    Part.Circle(Vector(45, -95, 0), Vector(0, 0, 1), 2.6),  # 3
    Part.Circle(Vector(45, -145, 0), Vector(0, 0, 1), 2.6),  # 4
    Part.Circle(Vector(205, -145, 0), Vector(0, 0, 1), 2.6),  # 5
    Part.Circle(Vector(205, -205, 0), Vector(0, 0, 1), 2.6),  # 6
    Part.Circle(Vector(45, -205, 0), Vector(0, 0, 1), 2.6),  # 7
    Part.Circle(Vector(45, -255, 0), Vector(0, 0, 1), 2.6),  # 8
    Part.Circle(Vector(205, -255, 0), Vector(0, 0, 1), 2.6),  # 9
    Part.Circle(Vector(205, -305, 0), Vector(0, 0, 1), 2.6),  # 10
    Part.Circle(Vector(45, -305, 0), Vector(0, 0, 1), 2.6),  # 11
    Part.Circle(Vector(125, -45, 0), Vector(0, 0, 1), 2.6),  # 12
    Part.Circle(Vector(125, -95, 0), Vector(0, 0, 1), 2.6),  # 13
    Part.Circle(Vector(125, -145, 0), Vector(0, 0, 1), 2.6),  # 14
    Part.Circle(Vector(125, -205, 0), Vector(0, 0, 1), 2.6),  # 15
    Part.Circle(Vector(125, -255, 0), Vector(0, 0, 1), 2.6),  # 16
    Part.Circle(Vector(125, -305, 0), Vector(0, 0, 1), 2.6),  # 17
], False)
sketch28.addConstraint([
    Sketcher.Constraint("Equal", 0, 1),
    Sketcher.Constraint("Equal", 1, 2),
    Sketcher.Constraint("Equal", 2, 3),
    Sketcher.Constraint("Equal", 3, 4),
    Sketcher.Constraint("Equal", 4, 5),
    Sketcher.Constraint("Equal", 5, 6),
    Sketcher.Constraint("Equal", 6, 7),
    Sketcher.Constraint("Equal", 7, 8),
    Sketcher.Constraint("Equal", 8, 9),
    Sketcher.Constraint("Equal", 9, 10),
    Sketcher.Constraint("Equal", 10, 11),
    Sketcher.Constraint("Equal", 11, 12),
    Sketcher.Constraint("Equal", 12, 13),
    Sketcher.Constraint("Equal", 13, 14),
    Sketcher.Constraint("Equal", 14, 15),
    Sketcher.Constraint("Equal", 15, 16),
    Sketcher.Constraint("Equal", 16, 17),
    Sketcher.Constraint("Horizontal", 0, 3, 1, 3),
    Sketcher.Constraint("Horizontal", 2, 3, 3, 3),
    Sketcher.Constraint("Horizontal", 4, 3, 5, 3),
    Sketcher.Constraint("Horizontal", 6, 3, 7, 3),
    Sketcher.Constraint("Horizontal", 8, 3, 9, 3),
    Sketcher.Constraint("Horizontal", 10, 3, 11, 3),
    Sketcher.Constraint("Horizontal", 1, 3, 12, 3),
    Sketcher.Constraint("Horizontal", 3, 3, 13, 3),
    Sketcher.Constraint("Horizontal", 5, 3, 14, 3),
    Sketcher.Constraint("Horizontal", 7, 3, 15, 3),
    Sketcher.Constraint("Horizontal", 9, 3, 16, 3),
    Sketcher.Constraint("Horizontal", 11, 3, 17, 3),
    Sketcher.Constraint("Vertical", 1, 3, 2, 3),
    Sketcher.Constraint("Vertical", 0, 3, 3, 3),
    Sketcher.Constraint("Vertical", 3, 3, 4, 3),
    Sketcher.Constraint("Vertical", 2, 3, 5, 3),
    Sketcher.Constraint("Vertical", 5, 3, 6, 3),
    Sketcher.Constraint("Vertical", 4, 3, 7, 3),
    Sketcher.Constraint("Vertical", 7, 3, 8, 3),
    Sketcher.Constraint("Vertical", 6, 3, 9, 3),
    Sketcher.Constraint("Vertical", 9, 3, 10, 3),
    Sketcher.Constraint("Vertical", 8, 3, 11, 3),
    Sketcher.Constraint("Vertical", 12, 3, 13, 3),
    Sketcher.Constraint("Vertical", 13, 3, 14, 3),
    Sketcher.Constraint("Vertical", 14, 3, 15, 3),
    Sketcher.Constraint("Vertical", 15, 3, 16, 3),
    Sketcher.Constraint("Vertical", 16, 3, 17, 3),
    Sketcher.Constraint("Diameter", 0, Q("5.2 mm")),
    Sketcher.Constraint("DistanceX", -1, 1, 0, 3, Q("45 mm")),
    Sketcher.Constraint("DistanceY", 0, 3, -1, 1, Q("45 mm")),
    Sketcher.Constraint("DistanceX", -1, 1, 1, 3, Q("205 mm")),
    Sketcher.Constraint("DistanceY", 2, 3, -1, 1, Q("95 mm")),
    Sketcher.Constraint("DistanceY", 4, 3, -1, 1, Q("145 mm")),
    Sketcher.Constraint("DistanceY", 6, 3, -1, 1, Q("205 mm")),
    Sketcher.Constraint("DistanceY", 8, 3, -1, 1, Q("255 mm")),
    Sketcher.Constraint("DistanceY", 10, 3, -1, 1, Q("305 mm")),
    Sketcher.Constraint("DistanceX", -1, 1, 12, 3, Q("125 mm")),
])
doc.recompute()
hole3 = body.newObject("PartDesign::Hole", "Hole002")
hole3.Profile = sketch28
hole3.ThreadType = "None"
hole3.Diameter = 5.2
hole3.DepthType = "Dimension"
hole3.Depth = 17
hole3.DrillPoint = "Angled"
hole3.DrillPointAngle = 118
hole3.Reversed = True

doc.recompute()
